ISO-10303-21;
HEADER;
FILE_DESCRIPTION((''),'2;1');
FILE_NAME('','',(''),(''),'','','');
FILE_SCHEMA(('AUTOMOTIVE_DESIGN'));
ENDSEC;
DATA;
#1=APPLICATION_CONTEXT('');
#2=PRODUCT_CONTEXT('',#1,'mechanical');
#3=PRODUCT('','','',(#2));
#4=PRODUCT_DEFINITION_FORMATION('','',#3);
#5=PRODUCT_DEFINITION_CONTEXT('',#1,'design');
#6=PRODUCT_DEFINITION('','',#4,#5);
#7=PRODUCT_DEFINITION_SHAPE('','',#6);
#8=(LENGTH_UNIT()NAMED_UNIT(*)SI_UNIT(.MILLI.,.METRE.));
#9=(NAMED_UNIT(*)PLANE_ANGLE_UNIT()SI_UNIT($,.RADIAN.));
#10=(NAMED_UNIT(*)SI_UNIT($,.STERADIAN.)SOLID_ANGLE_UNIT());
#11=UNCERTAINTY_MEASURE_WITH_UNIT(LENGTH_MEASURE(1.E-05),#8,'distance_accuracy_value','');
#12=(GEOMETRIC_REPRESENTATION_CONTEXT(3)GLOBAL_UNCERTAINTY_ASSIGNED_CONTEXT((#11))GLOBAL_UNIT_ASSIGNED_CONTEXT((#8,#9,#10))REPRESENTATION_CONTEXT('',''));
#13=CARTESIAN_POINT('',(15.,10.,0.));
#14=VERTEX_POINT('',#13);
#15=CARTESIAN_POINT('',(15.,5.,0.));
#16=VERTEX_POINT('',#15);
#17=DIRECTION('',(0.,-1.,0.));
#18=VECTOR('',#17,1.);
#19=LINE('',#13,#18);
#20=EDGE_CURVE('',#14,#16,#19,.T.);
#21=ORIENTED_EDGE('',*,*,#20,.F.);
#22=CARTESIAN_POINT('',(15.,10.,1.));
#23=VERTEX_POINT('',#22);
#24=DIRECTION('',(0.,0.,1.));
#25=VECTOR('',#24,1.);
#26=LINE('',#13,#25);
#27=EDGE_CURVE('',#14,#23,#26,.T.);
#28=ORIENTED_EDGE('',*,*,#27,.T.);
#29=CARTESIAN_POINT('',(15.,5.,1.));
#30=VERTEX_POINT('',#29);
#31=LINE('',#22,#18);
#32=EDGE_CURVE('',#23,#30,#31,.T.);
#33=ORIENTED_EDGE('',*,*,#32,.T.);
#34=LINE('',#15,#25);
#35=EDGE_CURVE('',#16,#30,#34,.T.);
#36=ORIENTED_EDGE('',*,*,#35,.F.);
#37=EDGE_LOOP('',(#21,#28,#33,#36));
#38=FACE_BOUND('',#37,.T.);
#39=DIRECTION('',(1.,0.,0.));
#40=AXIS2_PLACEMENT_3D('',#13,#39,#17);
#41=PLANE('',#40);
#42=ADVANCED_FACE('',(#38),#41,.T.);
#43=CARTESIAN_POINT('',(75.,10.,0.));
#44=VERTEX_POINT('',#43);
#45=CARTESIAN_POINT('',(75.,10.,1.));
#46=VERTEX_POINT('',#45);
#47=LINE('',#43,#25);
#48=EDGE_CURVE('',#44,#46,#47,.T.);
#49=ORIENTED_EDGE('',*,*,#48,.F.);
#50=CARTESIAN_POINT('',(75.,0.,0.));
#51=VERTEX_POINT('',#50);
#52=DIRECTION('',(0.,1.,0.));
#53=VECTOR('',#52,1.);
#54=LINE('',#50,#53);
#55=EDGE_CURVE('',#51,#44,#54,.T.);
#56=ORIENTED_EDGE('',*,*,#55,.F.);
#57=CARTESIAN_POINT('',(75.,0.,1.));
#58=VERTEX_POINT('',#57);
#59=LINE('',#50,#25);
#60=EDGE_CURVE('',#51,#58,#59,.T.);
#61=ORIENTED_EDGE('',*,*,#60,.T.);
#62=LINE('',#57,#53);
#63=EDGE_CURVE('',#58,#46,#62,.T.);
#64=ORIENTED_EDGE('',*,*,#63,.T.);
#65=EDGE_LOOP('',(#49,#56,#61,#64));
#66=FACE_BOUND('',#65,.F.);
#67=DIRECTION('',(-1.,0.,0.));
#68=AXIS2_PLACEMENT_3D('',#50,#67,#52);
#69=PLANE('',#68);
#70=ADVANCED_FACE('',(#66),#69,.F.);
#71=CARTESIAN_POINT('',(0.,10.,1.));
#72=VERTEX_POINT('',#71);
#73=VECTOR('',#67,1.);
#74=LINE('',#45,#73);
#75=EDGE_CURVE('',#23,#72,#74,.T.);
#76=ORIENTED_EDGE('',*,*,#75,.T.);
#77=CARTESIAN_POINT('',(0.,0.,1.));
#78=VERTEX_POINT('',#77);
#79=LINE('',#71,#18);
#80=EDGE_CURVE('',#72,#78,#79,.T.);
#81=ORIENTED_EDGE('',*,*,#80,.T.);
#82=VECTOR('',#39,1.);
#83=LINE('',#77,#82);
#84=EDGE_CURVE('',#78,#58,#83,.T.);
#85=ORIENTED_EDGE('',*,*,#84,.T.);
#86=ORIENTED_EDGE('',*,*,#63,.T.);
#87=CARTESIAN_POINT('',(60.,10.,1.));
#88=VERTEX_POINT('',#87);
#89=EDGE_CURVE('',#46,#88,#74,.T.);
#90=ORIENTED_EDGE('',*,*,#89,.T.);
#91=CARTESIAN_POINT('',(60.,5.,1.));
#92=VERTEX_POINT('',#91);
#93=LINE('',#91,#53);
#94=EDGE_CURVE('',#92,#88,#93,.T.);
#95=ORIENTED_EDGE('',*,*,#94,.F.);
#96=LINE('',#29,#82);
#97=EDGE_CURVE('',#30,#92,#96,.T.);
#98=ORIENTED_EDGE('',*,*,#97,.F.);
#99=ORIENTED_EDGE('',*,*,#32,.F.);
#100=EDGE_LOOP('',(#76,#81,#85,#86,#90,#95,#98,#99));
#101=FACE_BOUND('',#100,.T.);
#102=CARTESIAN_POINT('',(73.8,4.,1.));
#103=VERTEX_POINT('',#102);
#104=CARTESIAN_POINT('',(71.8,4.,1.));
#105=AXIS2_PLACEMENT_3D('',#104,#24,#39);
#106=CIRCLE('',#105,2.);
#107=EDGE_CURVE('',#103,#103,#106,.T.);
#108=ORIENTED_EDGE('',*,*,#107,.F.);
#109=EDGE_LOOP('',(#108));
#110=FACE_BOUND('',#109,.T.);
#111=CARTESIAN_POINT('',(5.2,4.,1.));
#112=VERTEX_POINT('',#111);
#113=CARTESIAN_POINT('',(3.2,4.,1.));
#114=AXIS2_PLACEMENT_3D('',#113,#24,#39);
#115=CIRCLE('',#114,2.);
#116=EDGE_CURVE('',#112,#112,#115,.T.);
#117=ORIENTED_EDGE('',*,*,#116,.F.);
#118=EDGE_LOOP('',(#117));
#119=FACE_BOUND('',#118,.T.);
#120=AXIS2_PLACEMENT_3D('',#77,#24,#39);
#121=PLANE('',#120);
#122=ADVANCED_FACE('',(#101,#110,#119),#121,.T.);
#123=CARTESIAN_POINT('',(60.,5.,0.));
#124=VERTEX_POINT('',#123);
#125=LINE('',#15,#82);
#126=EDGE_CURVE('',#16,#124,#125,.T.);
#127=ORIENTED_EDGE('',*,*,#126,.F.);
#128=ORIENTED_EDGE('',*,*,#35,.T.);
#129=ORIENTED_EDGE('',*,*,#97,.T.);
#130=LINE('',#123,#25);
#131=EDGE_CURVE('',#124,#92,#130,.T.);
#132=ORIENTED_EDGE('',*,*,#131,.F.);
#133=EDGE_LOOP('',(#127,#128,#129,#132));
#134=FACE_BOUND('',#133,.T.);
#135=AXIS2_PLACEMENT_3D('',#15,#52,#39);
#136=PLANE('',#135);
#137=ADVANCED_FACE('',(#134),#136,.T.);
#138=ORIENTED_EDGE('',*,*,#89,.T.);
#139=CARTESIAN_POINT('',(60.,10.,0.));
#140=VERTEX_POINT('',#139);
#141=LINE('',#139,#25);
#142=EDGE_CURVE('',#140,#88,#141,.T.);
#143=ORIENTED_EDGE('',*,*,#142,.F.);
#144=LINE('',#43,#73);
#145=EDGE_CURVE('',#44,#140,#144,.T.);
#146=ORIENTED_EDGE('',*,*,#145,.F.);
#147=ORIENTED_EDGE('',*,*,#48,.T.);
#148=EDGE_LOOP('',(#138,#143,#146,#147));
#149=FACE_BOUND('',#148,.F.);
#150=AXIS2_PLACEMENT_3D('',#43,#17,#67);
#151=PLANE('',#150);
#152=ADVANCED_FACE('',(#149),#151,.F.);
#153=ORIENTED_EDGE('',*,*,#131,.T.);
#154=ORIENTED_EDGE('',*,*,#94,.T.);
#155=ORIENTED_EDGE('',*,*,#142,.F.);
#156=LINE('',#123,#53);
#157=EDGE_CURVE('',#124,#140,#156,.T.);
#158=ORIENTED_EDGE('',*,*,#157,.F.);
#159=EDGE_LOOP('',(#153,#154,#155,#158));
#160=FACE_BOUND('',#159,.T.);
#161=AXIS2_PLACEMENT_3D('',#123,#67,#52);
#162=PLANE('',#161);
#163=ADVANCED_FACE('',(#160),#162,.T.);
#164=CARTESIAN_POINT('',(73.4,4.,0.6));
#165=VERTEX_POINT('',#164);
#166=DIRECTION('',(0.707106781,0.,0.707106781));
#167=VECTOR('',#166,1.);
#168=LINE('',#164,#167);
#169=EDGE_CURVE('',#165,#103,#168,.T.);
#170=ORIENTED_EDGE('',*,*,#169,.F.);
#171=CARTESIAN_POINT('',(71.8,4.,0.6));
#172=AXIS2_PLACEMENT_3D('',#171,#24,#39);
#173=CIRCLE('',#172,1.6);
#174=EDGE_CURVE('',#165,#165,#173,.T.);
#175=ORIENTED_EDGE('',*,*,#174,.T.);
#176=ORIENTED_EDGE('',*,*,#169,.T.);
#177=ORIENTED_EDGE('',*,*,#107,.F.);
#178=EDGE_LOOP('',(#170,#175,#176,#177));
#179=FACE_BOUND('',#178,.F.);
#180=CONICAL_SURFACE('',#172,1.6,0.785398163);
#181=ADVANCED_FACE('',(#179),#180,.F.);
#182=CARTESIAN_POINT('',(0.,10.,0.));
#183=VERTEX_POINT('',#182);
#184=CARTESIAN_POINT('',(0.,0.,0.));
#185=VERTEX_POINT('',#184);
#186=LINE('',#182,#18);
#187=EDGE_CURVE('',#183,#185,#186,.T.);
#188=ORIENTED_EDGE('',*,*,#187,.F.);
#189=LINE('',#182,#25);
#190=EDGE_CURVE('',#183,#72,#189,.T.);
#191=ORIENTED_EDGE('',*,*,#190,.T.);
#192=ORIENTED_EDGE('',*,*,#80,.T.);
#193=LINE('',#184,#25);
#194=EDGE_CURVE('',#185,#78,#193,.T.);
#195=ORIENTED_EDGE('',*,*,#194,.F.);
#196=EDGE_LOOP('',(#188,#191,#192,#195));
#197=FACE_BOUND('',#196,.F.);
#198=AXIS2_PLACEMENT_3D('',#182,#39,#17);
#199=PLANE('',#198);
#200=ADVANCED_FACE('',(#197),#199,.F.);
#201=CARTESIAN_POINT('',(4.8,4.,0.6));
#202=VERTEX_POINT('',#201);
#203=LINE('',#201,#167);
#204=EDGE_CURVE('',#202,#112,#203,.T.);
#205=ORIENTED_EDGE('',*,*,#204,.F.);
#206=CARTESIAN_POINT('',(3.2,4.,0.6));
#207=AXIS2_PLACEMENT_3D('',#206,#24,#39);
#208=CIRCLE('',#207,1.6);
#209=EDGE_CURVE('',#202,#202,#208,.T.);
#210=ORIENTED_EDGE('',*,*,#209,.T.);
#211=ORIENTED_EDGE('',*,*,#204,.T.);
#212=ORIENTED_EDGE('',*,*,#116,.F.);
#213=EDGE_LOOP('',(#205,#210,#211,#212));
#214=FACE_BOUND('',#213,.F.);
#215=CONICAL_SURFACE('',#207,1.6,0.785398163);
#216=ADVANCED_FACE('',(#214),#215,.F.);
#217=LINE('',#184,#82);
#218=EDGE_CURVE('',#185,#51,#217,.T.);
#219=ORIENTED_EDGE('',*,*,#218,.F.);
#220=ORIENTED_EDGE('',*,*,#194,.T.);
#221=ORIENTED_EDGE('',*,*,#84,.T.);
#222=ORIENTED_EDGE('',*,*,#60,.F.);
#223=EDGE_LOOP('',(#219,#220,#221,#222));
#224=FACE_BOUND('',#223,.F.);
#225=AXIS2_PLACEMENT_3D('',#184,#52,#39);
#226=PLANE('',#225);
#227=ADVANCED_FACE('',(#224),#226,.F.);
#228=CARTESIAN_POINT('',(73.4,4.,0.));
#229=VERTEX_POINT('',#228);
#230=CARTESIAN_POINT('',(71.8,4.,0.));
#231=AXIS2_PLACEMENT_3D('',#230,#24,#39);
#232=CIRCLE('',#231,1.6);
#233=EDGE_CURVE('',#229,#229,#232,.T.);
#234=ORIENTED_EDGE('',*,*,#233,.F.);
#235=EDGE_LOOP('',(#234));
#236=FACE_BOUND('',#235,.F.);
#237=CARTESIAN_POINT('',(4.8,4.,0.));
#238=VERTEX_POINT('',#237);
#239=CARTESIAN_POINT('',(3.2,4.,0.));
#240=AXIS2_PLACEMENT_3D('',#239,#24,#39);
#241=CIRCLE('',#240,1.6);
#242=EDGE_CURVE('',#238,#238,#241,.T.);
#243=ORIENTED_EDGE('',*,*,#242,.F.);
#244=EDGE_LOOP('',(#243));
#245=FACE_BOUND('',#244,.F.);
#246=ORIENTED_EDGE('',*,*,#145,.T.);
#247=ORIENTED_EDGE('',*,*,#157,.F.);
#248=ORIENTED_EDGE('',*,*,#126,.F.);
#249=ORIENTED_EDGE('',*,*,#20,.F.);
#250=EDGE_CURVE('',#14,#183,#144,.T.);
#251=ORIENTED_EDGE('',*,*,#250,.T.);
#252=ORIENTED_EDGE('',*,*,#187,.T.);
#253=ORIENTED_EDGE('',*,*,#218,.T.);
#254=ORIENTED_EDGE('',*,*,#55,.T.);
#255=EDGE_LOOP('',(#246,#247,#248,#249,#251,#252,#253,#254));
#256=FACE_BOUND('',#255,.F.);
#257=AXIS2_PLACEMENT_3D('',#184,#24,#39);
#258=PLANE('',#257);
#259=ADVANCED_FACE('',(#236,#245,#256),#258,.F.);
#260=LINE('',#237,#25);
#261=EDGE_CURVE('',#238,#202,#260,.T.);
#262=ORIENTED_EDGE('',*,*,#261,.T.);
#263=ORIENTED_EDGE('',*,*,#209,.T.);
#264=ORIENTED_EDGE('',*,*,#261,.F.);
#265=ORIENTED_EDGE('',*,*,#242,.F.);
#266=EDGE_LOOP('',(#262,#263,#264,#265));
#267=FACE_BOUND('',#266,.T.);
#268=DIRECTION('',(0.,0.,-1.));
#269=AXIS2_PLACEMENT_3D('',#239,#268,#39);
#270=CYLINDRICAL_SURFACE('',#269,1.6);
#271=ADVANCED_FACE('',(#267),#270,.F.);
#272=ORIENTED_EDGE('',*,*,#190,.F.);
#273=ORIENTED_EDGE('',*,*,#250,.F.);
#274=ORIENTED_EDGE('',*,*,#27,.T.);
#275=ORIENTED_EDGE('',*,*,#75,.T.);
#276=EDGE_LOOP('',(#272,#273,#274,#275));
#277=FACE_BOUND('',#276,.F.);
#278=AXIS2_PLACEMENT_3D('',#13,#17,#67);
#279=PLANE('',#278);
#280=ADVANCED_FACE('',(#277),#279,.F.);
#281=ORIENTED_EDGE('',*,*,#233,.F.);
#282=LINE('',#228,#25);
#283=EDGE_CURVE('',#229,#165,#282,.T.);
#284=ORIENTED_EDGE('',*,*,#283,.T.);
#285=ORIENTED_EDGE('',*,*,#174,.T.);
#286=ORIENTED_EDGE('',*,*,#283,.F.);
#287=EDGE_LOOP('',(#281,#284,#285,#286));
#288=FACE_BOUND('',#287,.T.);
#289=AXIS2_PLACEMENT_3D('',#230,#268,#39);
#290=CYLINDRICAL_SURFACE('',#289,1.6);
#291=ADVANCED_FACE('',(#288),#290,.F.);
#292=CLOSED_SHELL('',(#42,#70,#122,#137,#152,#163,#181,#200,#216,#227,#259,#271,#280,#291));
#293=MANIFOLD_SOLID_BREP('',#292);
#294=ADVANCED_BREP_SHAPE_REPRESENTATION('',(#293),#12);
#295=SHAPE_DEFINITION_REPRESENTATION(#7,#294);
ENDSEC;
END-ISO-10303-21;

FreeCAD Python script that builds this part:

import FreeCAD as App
import Part
import Sketcher


def edges_at(feature, points):
    """Names of the edges that pass closest to the given points."""
    edges = feature.Shape.Edges
    near = lambda p: min(range(len(edges)), key=lambda i: edges[i].distToShape(Part.Vertex(*p))[0])
    return sorted({f"Edge{near(p) + 1}" for p in points})

doc = App.newDocument("Part")
body = doc.addObject("PartDesign::Body", "Body")

sketch1 = body.newObject("Sketcher::SketchObject", "Sketch")
sketch1.AttachmentSupport = (doc.getObject("XY_Plane"), [""])
sketch1.MapMode = "FlatFace"
sketch1.addGeometry([
    Part.LineSegment(App.Vector(0, 10, 0), App.Vector(0, 0, 0)),
    Part.LineSegment(App.Vector(0, 0, 0), App.Vector(75, 0, 0)),
    Part.LineSegment(App.Vector(75, 0, 0), App.Vector(75, 10, 0)),
    Part.LineSegment(App.Vector(75, 10, 0), App.Vector(60, 10, 0)),
    Part.LineSegment(App.Vector(60, 10, 0), App.Vector(60, 5, 0)),
    Part.LineSegment(App.Vector(60, 5, 0), App.Vector(15, 5, 0)),
    Part.LineSegment(App.Vector(15, 5, 0), App.Vector(15, 10, 0)),
    Part.LineSegment(App.Vector(15, 10, 0), App.Vector(0, 10, 0)),
    Part.Circle(App.Vector(3.2, 4, 0), App.Vector(0, 0, 1), 1.6),
    Part.Circle(App.Vector(71.8, 4, 0), App.Vector(0, 0, 1), 1.6),
], False)
sketch1.addConstraint([
    Sketcher.Constraint("Coincident", 0, 2, 1, 1),
    Sketcher.Constraint("Coincident", 1, 2, 2, 1),
    Sketcher.Constraint("Coincident", 2, 2, 3, 1),
    Sketcher.Constraint("Coincident", 3, 2, 4, 1),
    Sketcher.Constraint("Coincident", 4, 2, 5, 1),
    Sketcher.Constraint("Coincident", 5, 2, 6, 1),
    Sketcher.Constraint("Coincident", 6, 2, 7, 1),
    Sketcher.Constraint("Coincident", 7, 2, 0, 1),
    Sketcher.Constraint("Vertical", 0),
    Sketcher.Constraint("Horizontal", 1),
    Sketcher.Constraint("Vertical", 2),
    Sketcher.Constraint("Horizontal", 3),
    Sketcher.Constraint("Vertical", 4),
    Sketcher.Constraint("Horizontal", 5),
    Sketcher.Constraint("Vertical", 6),
    Sketcher.Constraint("Horizontal", 7),
    Sketcher.Constraint("Coincident", 0, 2, -1, 1),
    Sketcher.Constraint("Equal", 8, 9),
    Sketcher.Constraint("Horizontal", 8, 3, 9, 3),
    Sketcher.Constraint("Horizontal", 3, 2, 6, 2),
    Sketcher.Constraint("Equal", 3, 7),
    Sketcher.Constraint("Diameter", 8, 3.2),
    Sketcher.Constraint("DistanceX", 1, 1, 1, 2, 75.0),
    Sketcher.Constraint("DistanceX", 5, 2, 5, 1, 45.0),
    Sketcher.Constraint("DistanceY", 0, 2, 0, 1, 10.0),
    Sketcher.Constraint("DistanceY", 4, 2, 4, 1, 5.0),
    Sketcher.Constraint("DistanceY", -1, 1, 8, 3, 4.0),
    Sketcher.Constraint("DistanceX", -1, 1, 8, 3, 3.2),
    Sketcher.Constraint("DistanceX", 9, 3, 1, 2, 3.2),
])
pad1 = body.newObject("PartDesign::Pad", "Pad")
pad1.Profile = sketch1
pad1.Length = 1
doc.recompute()

chamfer = body.newObject("PartDesign::Chamfer", "Chamfer")
chamfer.Base = (pad1, edges_at(pad1, [(1.6, 4, 1), (70.2, 4, 1)]))
chamfer.Size = 0.4

doc.recompute()
